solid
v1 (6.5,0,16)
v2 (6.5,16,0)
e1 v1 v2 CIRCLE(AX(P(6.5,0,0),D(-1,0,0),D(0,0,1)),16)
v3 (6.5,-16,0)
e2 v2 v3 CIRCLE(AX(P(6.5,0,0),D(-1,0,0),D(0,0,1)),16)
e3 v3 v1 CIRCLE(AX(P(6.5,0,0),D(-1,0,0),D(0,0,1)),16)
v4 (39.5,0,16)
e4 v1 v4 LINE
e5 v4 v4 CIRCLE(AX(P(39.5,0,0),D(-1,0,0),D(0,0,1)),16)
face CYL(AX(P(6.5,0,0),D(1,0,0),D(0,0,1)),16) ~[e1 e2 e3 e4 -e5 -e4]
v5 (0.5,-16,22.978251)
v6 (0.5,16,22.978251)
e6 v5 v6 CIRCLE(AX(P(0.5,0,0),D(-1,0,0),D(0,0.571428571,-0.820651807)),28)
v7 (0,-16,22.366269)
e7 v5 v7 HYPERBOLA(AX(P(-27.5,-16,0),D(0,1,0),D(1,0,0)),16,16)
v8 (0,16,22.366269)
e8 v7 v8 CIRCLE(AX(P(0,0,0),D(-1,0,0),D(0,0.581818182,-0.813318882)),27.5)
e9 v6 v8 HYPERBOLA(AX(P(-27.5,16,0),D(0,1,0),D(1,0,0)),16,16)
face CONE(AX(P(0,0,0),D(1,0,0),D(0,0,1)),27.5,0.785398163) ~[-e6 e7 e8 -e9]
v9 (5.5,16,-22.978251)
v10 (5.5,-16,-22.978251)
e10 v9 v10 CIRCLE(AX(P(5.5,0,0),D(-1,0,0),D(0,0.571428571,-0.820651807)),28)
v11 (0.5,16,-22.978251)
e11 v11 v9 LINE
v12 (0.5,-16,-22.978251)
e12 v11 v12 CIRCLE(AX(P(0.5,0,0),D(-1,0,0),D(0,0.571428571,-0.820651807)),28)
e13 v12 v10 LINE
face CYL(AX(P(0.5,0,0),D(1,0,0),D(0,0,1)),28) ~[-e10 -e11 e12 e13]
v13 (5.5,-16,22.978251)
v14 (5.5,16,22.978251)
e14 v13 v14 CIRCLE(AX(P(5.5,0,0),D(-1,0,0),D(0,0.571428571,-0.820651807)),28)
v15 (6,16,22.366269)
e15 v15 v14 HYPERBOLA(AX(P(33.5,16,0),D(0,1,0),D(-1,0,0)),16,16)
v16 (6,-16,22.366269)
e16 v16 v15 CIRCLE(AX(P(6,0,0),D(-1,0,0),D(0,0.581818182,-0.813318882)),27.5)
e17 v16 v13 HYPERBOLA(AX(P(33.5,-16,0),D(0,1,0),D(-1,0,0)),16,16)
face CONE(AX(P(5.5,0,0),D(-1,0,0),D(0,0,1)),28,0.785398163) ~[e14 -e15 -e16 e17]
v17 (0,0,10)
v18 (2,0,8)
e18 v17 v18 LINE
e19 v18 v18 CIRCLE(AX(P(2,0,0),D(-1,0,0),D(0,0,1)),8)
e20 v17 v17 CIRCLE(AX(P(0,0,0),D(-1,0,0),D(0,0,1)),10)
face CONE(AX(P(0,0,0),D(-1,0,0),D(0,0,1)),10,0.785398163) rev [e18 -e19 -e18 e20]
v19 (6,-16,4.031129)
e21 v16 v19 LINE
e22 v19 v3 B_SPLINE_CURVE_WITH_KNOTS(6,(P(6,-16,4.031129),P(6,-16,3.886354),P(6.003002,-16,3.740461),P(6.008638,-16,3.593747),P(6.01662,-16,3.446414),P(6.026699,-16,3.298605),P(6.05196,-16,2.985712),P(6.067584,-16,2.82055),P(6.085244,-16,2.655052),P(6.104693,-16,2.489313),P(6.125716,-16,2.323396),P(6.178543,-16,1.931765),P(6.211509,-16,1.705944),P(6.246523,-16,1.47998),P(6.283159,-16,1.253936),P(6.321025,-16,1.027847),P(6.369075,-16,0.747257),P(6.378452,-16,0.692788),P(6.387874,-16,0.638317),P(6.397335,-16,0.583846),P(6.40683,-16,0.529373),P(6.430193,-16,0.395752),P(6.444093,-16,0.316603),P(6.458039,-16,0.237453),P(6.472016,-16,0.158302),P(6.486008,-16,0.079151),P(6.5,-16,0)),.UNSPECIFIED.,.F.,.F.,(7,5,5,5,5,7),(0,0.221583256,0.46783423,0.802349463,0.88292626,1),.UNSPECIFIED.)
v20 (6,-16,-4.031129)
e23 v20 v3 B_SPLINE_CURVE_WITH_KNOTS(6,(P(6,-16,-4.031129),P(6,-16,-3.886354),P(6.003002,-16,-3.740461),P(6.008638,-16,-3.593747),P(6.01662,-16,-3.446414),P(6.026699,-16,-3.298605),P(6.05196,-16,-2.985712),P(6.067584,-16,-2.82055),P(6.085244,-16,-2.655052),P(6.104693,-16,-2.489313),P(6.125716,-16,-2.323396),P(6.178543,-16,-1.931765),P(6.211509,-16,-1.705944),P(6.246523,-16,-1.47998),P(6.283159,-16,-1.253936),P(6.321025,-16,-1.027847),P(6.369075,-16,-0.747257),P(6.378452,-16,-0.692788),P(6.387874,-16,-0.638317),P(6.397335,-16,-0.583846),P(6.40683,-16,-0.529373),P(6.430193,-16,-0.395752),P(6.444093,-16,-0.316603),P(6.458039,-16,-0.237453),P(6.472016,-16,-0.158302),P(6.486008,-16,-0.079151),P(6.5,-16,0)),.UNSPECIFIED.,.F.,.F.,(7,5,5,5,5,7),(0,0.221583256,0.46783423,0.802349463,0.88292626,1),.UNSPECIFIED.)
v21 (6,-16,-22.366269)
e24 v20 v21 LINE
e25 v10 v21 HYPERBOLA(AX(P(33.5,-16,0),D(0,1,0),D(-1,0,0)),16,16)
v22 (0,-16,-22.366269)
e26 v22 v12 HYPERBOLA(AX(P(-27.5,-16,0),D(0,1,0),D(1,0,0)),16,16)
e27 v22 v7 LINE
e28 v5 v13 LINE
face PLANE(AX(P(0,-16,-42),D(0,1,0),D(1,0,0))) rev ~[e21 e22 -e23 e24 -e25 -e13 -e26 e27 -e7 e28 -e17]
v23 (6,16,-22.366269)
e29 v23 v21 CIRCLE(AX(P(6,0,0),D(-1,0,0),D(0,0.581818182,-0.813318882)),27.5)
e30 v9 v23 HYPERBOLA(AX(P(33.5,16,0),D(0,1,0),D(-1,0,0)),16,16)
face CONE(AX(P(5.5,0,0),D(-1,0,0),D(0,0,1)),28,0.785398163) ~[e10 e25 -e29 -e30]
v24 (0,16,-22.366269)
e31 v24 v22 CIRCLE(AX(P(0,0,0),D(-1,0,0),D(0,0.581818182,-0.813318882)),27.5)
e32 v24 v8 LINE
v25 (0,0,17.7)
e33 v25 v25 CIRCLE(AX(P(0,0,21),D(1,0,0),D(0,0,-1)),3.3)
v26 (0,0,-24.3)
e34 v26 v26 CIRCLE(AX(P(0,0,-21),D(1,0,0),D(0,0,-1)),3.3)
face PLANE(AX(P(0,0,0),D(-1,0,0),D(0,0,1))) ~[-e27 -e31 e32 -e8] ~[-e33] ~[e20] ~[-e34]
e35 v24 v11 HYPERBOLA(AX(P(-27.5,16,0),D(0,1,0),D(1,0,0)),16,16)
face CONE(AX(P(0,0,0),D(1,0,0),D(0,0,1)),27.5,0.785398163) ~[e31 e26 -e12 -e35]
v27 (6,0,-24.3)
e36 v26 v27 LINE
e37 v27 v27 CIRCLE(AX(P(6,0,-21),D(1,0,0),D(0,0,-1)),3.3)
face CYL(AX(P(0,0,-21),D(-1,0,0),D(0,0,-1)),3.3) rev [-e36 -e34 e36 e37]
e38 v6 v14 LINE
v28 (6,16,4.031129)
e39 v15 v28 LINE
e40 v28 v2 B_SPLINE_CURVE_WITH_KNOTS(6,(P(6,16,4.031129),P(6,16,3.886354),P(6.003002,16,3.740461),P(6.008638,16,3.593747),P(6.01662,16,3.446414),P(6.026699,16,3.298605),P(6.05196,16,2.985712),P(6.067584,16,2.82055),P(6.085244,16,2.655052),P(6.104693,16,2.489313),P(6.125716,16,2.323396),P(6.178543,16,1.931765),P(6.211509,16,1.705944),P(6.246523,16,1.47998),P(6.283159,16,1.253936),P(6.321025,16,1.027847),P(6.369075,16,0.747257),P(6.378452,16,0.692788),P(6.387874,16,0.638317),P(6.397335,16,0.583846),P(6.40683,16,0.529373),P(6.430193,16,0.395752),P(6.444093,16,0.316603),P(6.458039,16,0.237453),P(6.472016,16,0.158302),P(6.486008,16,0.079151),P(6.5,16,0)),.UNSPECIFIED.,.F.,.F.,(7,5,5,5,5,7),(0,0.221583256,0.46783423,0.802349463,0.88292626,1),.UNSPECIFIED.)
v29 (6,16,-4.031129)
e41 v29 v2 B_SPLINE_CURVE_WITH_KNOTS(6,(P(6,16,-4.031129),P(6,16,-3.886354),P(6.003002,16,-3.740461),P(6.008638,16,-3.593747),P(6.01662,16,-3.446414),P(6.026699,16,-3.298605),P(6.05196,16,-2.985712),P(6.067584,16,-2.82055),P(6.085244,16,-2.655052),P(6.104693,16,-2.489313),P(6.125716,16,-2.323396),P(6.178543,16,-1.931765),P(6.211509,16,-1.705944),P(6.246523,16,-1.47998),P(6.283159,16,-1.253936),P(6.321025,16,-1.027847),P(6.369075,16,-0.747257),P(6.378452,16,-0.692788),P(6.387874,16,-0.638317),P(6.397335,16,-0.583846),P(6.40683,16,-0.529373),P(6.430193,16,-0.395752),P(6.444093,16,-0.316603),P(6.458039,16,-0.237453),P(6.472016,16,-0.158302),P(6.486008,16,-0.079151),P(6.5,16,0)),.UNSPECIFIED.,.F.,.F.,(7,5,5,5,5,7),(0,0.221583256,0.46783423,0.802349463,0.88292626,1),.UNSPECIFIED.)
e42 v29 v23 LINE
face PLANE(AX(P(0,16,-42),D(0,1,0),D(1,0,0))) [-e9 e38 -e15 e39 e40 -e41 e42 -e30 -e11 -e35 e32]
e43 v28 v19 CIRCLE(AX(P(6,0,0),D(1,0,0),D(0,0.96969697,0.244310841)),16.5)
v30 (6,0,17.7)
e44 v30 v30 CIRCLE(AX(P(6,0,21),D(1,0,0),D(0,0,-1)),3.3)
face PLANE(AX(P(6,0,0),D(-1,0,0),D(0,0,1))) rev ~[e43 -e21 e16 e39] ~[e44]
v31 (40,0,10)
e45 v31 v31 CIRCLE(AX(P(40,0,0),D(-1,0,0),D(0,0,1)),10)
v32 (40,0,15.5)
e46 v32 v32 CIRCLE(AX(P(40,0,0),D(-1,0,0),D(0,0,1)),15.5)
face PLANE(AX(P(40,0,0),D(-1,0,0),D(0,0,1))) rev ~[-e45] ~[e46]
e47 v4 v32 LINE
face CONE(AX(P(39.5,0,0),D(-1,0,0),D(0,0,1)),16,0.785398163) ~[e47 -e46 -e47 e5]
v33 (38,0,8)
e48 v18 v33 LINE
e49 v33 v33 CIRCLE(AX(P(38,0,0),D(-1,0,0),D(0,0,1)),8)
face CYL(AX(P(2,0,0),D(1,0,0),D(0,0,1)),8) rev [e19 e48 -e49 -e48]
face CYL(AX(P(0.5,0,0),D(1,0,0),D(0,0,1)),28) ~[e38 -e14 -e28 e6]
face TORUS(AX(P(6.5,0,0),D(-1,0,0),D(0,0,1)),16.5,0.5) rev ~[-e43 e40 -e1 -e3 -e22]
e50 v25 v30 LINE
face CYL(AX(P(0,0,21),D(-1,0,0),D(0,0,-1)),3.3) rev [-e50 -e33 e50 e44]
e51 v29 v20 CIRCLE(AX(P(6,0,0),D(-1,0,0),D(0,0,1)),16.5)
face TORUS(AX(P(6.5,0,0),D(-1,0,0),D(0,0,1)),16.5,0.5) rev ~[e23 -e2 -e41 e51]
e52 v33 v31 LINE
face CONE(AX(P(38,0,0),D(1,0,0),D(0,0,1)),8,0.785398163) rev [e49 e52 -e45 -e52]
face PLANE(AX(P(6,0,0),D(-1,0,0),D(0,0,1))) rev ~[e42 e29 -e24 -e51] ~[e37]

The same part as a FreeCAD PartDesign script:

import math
import FreeCAD as App
import Part
import Sketcher
from FreeCAD import Vector

doc = App.newDocument("Part")
body = doc.addObject("PartDesign::Body", "Body")

# Sketch on XY plane
sketch1 = body.newObject("Sketcher::SketchObject", "Sketch")
sketch1.AttachmentSupport = (doc.getObject("XY_Plane"), [""])
sketch1.MapMode = "FlatFace"
sketch1.addGeometry(Part.LineSegment(Vector(0, 27.5, 0), Vector(0, 0, 0)), False)
sketch1.addGeometry(Part.LineSegment(Vector(0, 0, 0), Vector(40, 0, 0)), False)
sketch1.addGeometry(Part.LineSegment(Vector(40, 0, 0), Vector(40, 15.5, 0)), False)
sketch1.addGeometry(Part.LineSegment(Vector(40, 15.5, 0), Vector(39.5, 16, 0)), False)
sketch1.addGeometry(Part.LineSegment(Vector(39.5, 16, 0), Vector(6.5, 16, 0)), False)
sketch1.addGeometry(Part.ArcOfCircle(Part.Circle(Vector(6.5, 16.5, 0), Vector(0, 0, 1), 0.5), math.radians(180), math.radians(270)), False)
sketch1.addGeometry(Part.LineSegment(Vector(6, 16.5, 0), Vector(6, 27.5, 0)), False)
sketch1.addGeometry(Part.LineSegment(Vector(6, 27.5, 0), Vector(5.5, 28, 0)), False)
sketch1.addGeometry(Part.LineSegment(Vector(5.5, 28, 0), Vector(0.5, 28, 0)), False)
sketch1.addGeometry(Part.LineSegment(Vector(0.5, 28, 0), Vector(0, 27.5, 0)), False)
sketch1.addConstraint(Sketcher.Constraint("Coincident", 0, 2, 1, 1))
sketch1.addConstraint(Sketcher.Constraint("Coincident", 1, 2, 2, 1))
sketch1.addConstraint(Sketcher.Constraint("Coincident", 2, 2, 3, 1))
sketch1.addConstraint(Sketcher.Constraint("Coincident", 3, 2, 4, 1))
sketch1.addConstraint(Sketcher.Constraint("Tangent", 4, 2, 5, 2))
sketch1.addConstraint(Sketcher.Constraint("Tangent", 5, 1, 6, 1))
sketch1.addConstraint(Sketcher.Constraint("Coincident", 6, 2, 7, 1))
sketch1.addConstraint(Sketcher.Constraint("Coincident", 7, 2, 8, 1))
sketch1.addConstraint(Sketcher.Constraint("Coincident", 8, 2, 9, 1))
sketch1.addConstraint(Sketcher.Constraint("Coincident", 9, 2, 0, 1))
sketch1.addConstraint(Sketcher.Constraint("Vertical", 0))
sketch1.addConstraint(Sketcher.Constraint("Horizontal", 1))
sketch1.addConstraint(Sketcher.Constraint("Vertical", 2))
sketch1.addConstraint(Sketcher.Constraint("Horizontal", 4))
sketch1.addConstraint(Sketcher.Constraint("Vertical", 6))
sketch1.addConstraint(Sketcher.Constraint("Horizontal", 8))
sketch1.addConstraint(Sketcher.Constraint("Coincident", 0, 2, -1, 1))
sketch1.addConstraint(Sketcher.Constraint("Parallel", 3, 7))
sketch1.addConstraint(Sketcher.Constraint("Perpendicular", 7, 9))
sketch1.addConstraint(Sketcher.Constraint("Horizontal", 6, 2, 9, 2))
sketch1.addConstraint(Sketcher.Constraint("Equal", 3, 7))
sketch1.addConstraint(Sketcher.Constraint("Equal", 7, 9))
sketch1.addConstraint(Sketcher.Constraint("Radius", 5, 0.5))
sketch1.addConstraint(Sketcher.Constraint("DistanceX", 1, 1, 1, 2, 40.0))
sketch1.addConstraint(Sketcher.Constraint("DistanceX", 4, 2, 4, 1, 33.0))
sketch1.addConstraint(Sketcher.Constraint("DistanceX", 8, 2, 8, 1, 5.0))
sketch1.addConstraint(Sketcher.Constraint("DistanceY", 6, 1, 6, 2, 11.0))
sketch1.addConstraint(Sketcher.Constraint("DistanceY", 0, 2, 0, 1, 27.5))
revolution = body.newObject("PartDesign::Revolution", "Revolution")
revolution.Profile = sketch1
revolution.ReferenceAxis = (sketch1, ["H_Axis"])
revolution.Angle = 360

# Sketch on XY plane
sketch2 = body.newObject("Sketcher::SketchObject", "Sketch001")
sketch2.AttachmentSupport = (doc.getObject("XY_Plane"), [""])
sketch2.MapMode = "FlatFace"
sketch2.addGeometry(Part.LineSegment(Vector(0, 10, 0), Vector(0, 0, 0)), False)
sketch2.addGeometry(Part.LineSegment(Vector(0, 0, 0), Vector(40, 0, 0)), False)
sketch2.addGeometry(Part.LineSegment(Vector(40, 0, 0), Vector(40, 10, 0)), False)
sketch2.addGeometry(Part.LineSegment(Vector(40, 10, 0), Vector(38, 8, 0)), False)
sketch2.addGeometry(Part.LineSegment(Vector(38, 8, 0), Vector(2, 8, 0)), False)
sketch2.addGeometry(Part.LineSegment(Vector(2, 8, 0), Vector(0, 10, 0)), False)
sketch2.addConstraint(Sketcher.Constraint("Coincident", 0, 2, 1, 1))
sketch2.addConstraint(Sketcher.Constraint("Coincident", 1, 2, 2, 1))
sketch2.addConstraint(Sketcher.Constraint("Coincident", 2, 2, 3, 1))
sketch2.addConstraint(Sketcher.Constraint("Coincident", 3, 2, 4, 1))
sketch2.addConstraint(Sketcher.Constraint("Coincident", 4, 2, 5, 1))
sketch2.addConstraint(Sketcher.Constraint("Coincident", 5, 2, 0, 1))
sketch2.addConstraint(Sketcher.Constraint("Vertical", 0))
sketch2.addConstraint(Sketcher.Constraint("Horizontal", 1))
sketch2.addConstraint(Sketcher.Constraint("Vertical", 2))
sketch2.addConstraint(Sketcher.Constraint("Horizontal", 4))
sketch2.addConstraint(Sketcher.Constraint("Coincident", 0, 2, -1, 1))
sketch2.addConstraint(Sketcher.Constraint("Perpendicular", 3, 5))
sketch2.addConstraint(Sketcher.Constraint("Horizontal", 2, 2, 5, 2))
sketch2.addConstraint(Sketcher.Constraint("Equal", 3, 5))
sketch2.addConstraint(Sketcher.Constraint("DistanceX", 1, 1, 1, 2, 40.0))
sketch2.addConstraint(Sketcher.Constraint("DistanceX", 4, 2, 4, 1, 36.0))
sketch2.addConstraint(Sketcher.Constraint("DistanceY", 0, 2, 0, 1, 10.0))
groove = body.newObject("PartDesign::Groove", "Groove")
groove.Profile = sketch2
groove.ReferenceAxis = (sketch2, ["H_Axis"])
groove.Angle = 360

# Sketch on YZ plane
sketch3 = body.newObject("Sketcher::SketchObject", "Sketch002")
sketch3.AttachmentSupport = (doc.getObject("YZ_Plane"), [""])
sketch3.MapMode = "FlatFace"
sketch3.addGeometry(Part.Circle(Vector(0, -21, 0), Vector(0, 0, 1), 3.3), False)
sketch3.addConstraint(Sketcher.Constraint("PointOnObject", 0, 3, -2))
sketch3.addConstraint(Sketcher.Constraint("Diameter", 0, 6.6))
sketch3.addConstraint(Sketcher.Constraint("DistanceY", 0, 3, -1, 1, 21.0))
pocket1 = body.newObject("PartDesign::Pocket", "Pocket")
pocket1.Profile = sketch3
pocket1.Length = 6
pocket1.Reversed = True

# Sketch on YZ plane
sketch4 = body.newObject("Sketcher::SketchObject", "Sketch003")
sketch4.AttachmentSupport = (doc.getObject("YZ_Plane"), [""])
sketch4.MapMode = "FlatFace"
sketch4.addGeometry(Part.Circle(Vector(0, 21, 0), Vector(0, 0, 1), 3.3), False)
sketch4.addConstraint(Sketcher.Constraint("PointOnObject", 0, 3, -2))
sketch4.addConstraint(Sketcher.Constraint("Diameter", 0, 6.6))
sketch4.addConstraint(Sketcher.Constraint("DistanceY", -1, 1, 0, 3, 21.0))
pocket2 = body.newObject("PartDesign::Pocket", "Pocket001")
pocket2.Profile = sketch4
pocket2.Length = 6
pocket2.Reversed = True

# Sketch on YZ plane
sketch5 = body.newObject("Sketcher::SketchObject", "Sketch004")
sketch5.AttachmentSupport = (doc.getObject("YZ_Plane"), [""])
sketch5.MapMode = "FlatFace"
sketch5.addGeometry(Part.Circle(Vector(21, 0, 0), Vector(0, 0, 1), 3.3), False)
sketch5.addConstraint(Sketcher.Constraint("PointOnObject", 0, 3, -1))
sketch5.addConstraint(Sketcher.Constraint("Diameter", 0, 6.6))
sketch5.addConstraint(Sketcher.Constraint("DistanceX", -1, 1, 0, 3, 21.0))
pocket3 = body.newObject("PartDesign::Pocket", "Pocket002")
pocket3.Profile = sketch5
pocket3.Length = 6
pocket3.Reversed = True

# Sketch on YZ plane
sketch6 = body.newObject("Sketcher::SketchObject", "Sketch005")
sketch6.AttachmentSupport = (doc.getObject("YZ_Plane"), [""])
sketch6.MapMode = "FlatFace"
sketch6.addGeometry(Part.Circle(Vector(-21, 0, 0), Vector(0, 0, 1), 3.3), False)
sketch6.addConstraint(Sketcher.Constraint("PointOnObject", 0, 3, -1))
sketch6.addConstraint(Sketcher.Constraint("Diameter", 0, 6.6))
sketch6.addConstraint(Sketcher.Constraint("DistanceX", 0, 3, -1, 1, 21.0))
pocket4 = body.newObject("PartDesign::Pocket", "Pocket003")
pocket4.Profile = sketch6
pocket4.Length = 6
pocket4.Reversed = True

# Sketch on XY plane
sketch7 = body.newObject("Sketcher::SketchObject", "Sketch006")
sketch7.AttachmentSupport = (doc.getObject("XY_Plane"), [""])
sketch7.MapMode = "FlatFace"
sketch7.addGeometry(Part.LineSegment(Vector(0, 48, 0), Vector(0, 16, 0)), False)
sketch7.addGeometry(Part.LineSegment(Vector(0, 16, 0), Vector(40, 16, 0)), False)
sketch7.addGeometry(Part.LineSegment(Vector(40, 16, 0), Vector(40, 48, 0)), False)
sketch7.addGeometry(Part.LineSegment(Vector(40, 48, 0), Vector(0, 48, 0)), False)
sketch7.addConstraint(Sketcher.Constraint("Coincident", 0, 2, 1, 1))
sketch7.addConstraint(Sketcher.Constraint("Coincident", 1, 2, 2, 1))
sketch7.addConstraint(Sketcher.Constraint("Coincident", 2, 2, 3, 1))
sketch7.addConstraint(Sketcher.Constraint("Coincident", 3, 2, 0, 1))
sketch7.addConstraint(Sketcher.Constraint("Vertical", 0))
sketch7.addConstraint(Sketcher.Constraint("Horizontal", 1))
sketch7.addConstraint(Sketcher.Constraint("Vertical", 2))
sketch7.addConstraint(Sketcher.Constraint("Horizontal", 3))
sketch7.addConstraint(Sketcher.Constraint("PointOnObject", 0, 2, -2))
sketch7.addConstraint(Sketcher.Constraint("DistanceX", 1, 1, 1, 2, 40.0))
sketch7.addConstraint(Sketcher.Constraint("DistanceY", 0, 2, 0, 1, 32.0))
sketch7.addConstraint(Sketcher.Constraint("DistanceY", -1, 1, 0, 2, 16.0))
pocket5 = body.newObject("PartDesign::Pocket", "Pocket004")
pocket5.Profile = sketch7
pocket5.Type = "ThroughAll"
pocket5.Midplane = True

# Sketch on XY plane
sketch8 = body.newObject("Sketcher::SketchObject", "Sketch007")
sketch8.AttachmentSupport = (doc.getObject("XY_Plane"), [""])
sketch8.MapMode = "FlatFace"
sketch8.addGeometry(Part.LineSegment(Vector(0, -16, 0), Vector(0, -48, 0)), False)
sketch8.addGeometry(Part.LineSegment(Vector(0, -48, 0), Vector(40, -48, 0)), False)
sketch8.addGeometry(Part.LineSegment(Vector(40, -48, 0), Vector(40, -16, 0)), False)
sketch8.addGeometry(Part.LineSegment(Vector(40, -16, 0), Vector(0, -16, 0)), False)
sketch8.addConstraint(Sketcher.Constraint("Coincident", 0, 2, 1, 1))
sketch8.addConstraint(Sketcher.Constraint("Coincident", 1, 2, 2, 1))
sketch8.addConstraint(Sketcher.Constraint("Coincident", 2, 2, 3, 1))
sketch8.addConstraint(Sketcher.Constraint("Coincident", 3, 2, 0, 1))
sketch8.addConstraint(Sketcher.Constraint("Vertical", 0))
sketch8.addConstraint(Sketcher.Constraint("Horizontal", 1))
sketch8.addConstraint(Sketcher.Constraint("Vertical", 2))
sketch8.addConstraint(Sketcher.Constraint("Horizontal", 3))
sketch8.addConstraint(Sketcher.Constraint("PointOnObject", 0, 2, -2))
sketch8.addConstraint(Sketcher.Constraint("DistanceX", 1, 1, 1, 2, 40.0))
sketch8.addConstraint(Sketcher.Constraint("DistanceY", 0, 2, 0, 1, 32.0))
sketch8.addConstraint(Sketcher.Constraint("DistanceY", 0, 2, -1, 1, 48.0))
pocket6 = body.newObject("PartDesign::Pocket", "Pocket005")
pocket6.Profile = sketch8
pocket6.Type = "ThroughAll"
pocket6.Midplane = True

doc.recompute()
